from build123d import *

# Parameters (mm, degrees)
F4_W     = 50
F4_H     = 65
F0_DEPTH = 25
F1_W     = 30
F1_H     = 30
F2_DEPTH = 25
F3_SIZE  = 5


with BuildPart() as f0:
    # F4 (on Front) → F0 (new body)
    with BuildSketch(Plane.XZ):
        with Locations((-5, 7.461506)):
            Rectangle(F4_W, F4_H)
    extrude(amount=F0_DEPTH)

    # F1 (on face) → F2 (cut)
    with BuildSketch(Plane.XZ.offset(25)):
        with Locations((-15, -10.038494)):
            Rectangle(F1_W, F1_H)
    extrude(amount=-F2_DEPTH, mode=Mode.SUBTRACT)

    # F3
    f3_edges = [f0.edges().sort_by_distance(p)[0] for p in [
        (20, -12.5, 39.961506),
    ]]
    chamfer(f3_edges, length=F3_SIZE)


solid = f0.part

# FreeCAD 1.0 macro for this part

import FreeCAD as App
import Part
import Sketcher
Q = App.Units.Quantity


def edges_at(feature, points):
    """Names of the edges that pass closest to the given points."""
    edges = feature.Shape.Edges
    near = lambda p: min(range(len(edges)), key=lambda i: edges[i].distToShape(Part.Vertex(*p))[0])
    return sorted({f"Edge{near(p) + 1}" for p in points})


def add_polygon(sketch, points):
    """Adds a closed chain of lines whose ends are joined by coincident constraints."""
    first, n = sketch.GeometryCount, len(points)
    for a, b in zip(points, points[1:] + points[:1]):
        sketch.addGeometry(Part.LineSegment(App.Vector(*a, 0), App.Vector(*b, 0)), False)
    for i in range(n):
        sketch.addConstraint(Sketcher.Constraint("Coincident", first + i, 2, first + (i + 1) % n, 1))

doc = App.newDocument("Part")
params = doc.addObject("Spreadsheet::Sheet", "Params")
for row, (alias, value) in enumerate([
    ("sketch1_width", "50 mm"),
    ("sketch1_height", "65 mm"),
    ("pad1_length", "25 mm"),
    ("sketch2_width", "30 mm"),
    ("pocket1_length", "25 mm"),
    ("chamfer_size", "5 mm"),
], start=1):
    params.set(f"A{row}", alias)
    params.set(f"B{row}", "=" + value)
    params.setAlias(f"B{row}", alias)

body = doc.addObject("PartDesign::Body", "Body")

sketch1 = body.newObject("Sketcher::SketchObject", "Sketch")
sketch1.AttachmentSupport = (doc.getObject("XZ_Plane"), [""])
sketch1.MapMode = "FlatFace"
add_polygon(sketch1, [(-30, 40), (-30, -25), (20, -25), (20, 40)])
sketch1.addConstraint([
    Sketcher.Constraint("Vertical", 0),
    Sketcher.Constraint("Horizontal", 1),
    Sketcher.Constraint("Vertical", 2),
    Sketcher.Constraint("Horizontal", 3),
    Sketcher.Constraint("DistanceX", 1, 1, 1, 2, Q("50 mm")),
    Sketcher.Constraint("DistanceY", 0, 2, 0, 1, Q("65 mm")),
    Sketcher.Constraint("DistanceX", 0, 2, -1, 1, Q("30 mm")),
    Sketcher.Constraint("DistanceY", 0, 2, -1, 1, Q("25.038494 mm")),
])
sketch1.setExpression("Constraints[8]", "Params.sketch1_width")
sketch1.setExpression("Constraints[9]", "Params.sketch1_height")
pad1 = body.newObject("PartDesign::Pad", "Pad")
pad1.Profile = sketch1
pad1.setExpression("Length", "Params.pad1_length")

sketch2 = body.newObject("Sketcher::SketchObject", "Sketch001")
sketch2.AttachmentSupport = (doc.getObject("XZ_Plane"), [""])
sketch2.MapMode = "FlatFace"
sketch2.AttachmentOffset = App.Placement(App.Vector(0, 0, 25), App.Rotation())
add_polygon(sketch2, [(-30, 5), (-30, -25), (0, -25), (0, 5)])
sketch2.addConstraint([
    Sketcher.Constraint("Vertical", 0),
    Sketcher.Constraint("Horizontal", 1),
    Sketcher.Constraint("Vertical", 2),
    Sketcher.Constraint("Horizontal", 3),
    Sketcher.Constraint("PointOnObject", 1, 2, -2),
    Sketcher.Constraint("Equal", 3, 0),
    Sketcher.Constraint("DistanceX", 1, 1, 1, 2, Q("30 mm")),
    Sketcher.Constraint("DistanceY", 0, 2, -1, 1, Q("25.038494 mm")),
])
sketch2.setExpression("Constraints[10]", "Params.sketch2_width")
pocket1 = body.newObject("PartDesign::Pocket", "Pocket")
pocket1.Profile = sketch2
pocket1.setExpression("Length", "Params.pocket1_length")
doc.recompute()

chamfer = body.newObject("PartDesign::Chamfer", "Chamfer")
chamfer.Base = (pocket1, edges_at(pocket1, [(20, -12.5, 39.962)]))
chamfer.setExpression("Size", "Params.chamfer_size")

doc.recompute()
